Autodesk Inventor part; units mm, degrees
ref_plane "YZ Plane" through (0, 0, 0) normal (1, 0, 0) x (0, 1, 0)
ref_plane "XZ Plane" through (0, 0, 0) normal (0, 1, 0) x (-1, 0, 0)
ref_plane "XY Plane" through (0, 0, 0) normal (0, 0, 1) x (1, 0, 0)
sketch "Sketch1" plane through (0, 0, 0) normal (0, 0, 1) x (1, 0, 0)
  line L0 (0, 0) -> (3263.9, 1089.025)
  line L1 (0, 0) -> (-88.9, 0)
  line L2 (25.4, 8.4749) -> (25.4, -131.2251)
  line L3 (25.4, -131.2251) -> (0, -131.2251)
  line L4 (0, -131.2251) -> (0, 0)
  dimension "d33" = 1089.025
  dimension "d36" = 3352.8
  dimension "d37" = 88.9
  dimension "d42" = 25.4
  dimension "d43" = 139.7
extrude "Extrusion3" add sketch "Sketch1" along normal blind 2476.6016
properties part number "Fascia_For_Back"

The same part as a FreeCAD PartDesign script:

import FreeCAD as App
import Part
import Sketcher
Q = App.Units.Quantity


def add_polygon(sketch, points):
    """Adds a closed chain of lines whose ends are joined by coincident constraints."""
    first, n = sketch.GeometryCount, len(points)
    for a, b in zip(points, points[1:] + points[:1]):
        sketch.addGeometry(Part.LineSegment(App.Vector(*a, 0), App.Vector(*b, 0)), False)
    for i in range(n):
        sketch.addConstraint(Sketcher.Constraint("Coincident", first + i, 2, first + (i + 1) % n, 1))

doc = App.newDocument("Part")
params = doc.addObject("Spreadsheet::Sheet", "Params")
for row, (alias, value) in enumerate([
    ("sketch1_width", "1 in"),
    ("sketch1_height", "5.5 in"),
    ("pad1_length", "97.504 in"),
], start=1):
    params.set(f"A{row}", alias)
    params.set(f"B{row}", "=" + value)
    params.setAlias(f"B{row}", alias)

body = doc.addObject("PartDesign::Body", "Body")

sketch1 = body.newObject("Sketcher::SketchObject", "Sketch")
sketch1.AttachmentSupport = (doc.getObject("XY_Plane"), [""])
sketch1.MapMode = "FlatFace"
add_polygon(sketch1, [(25.399999, 8.474902), (0, 0), (0, -131.2251), (25.4, -131.2251)])
sketch1.addConstraint(Sketcher.Constraint("Vertical", 1))
sketch1.addConstraint(Sketcher.Constraint("Horizontal", 2))
sketch1.addConstraint(Sketcher.Constraint("Vertical", 3))
sketch1.addConstraint(Sketcher.Constraint("Coincident", 0, 2, -1, 1))
sketch1.addConstraint(Sketcher.Constraint("DistanceX", 2, 1, 2, 2, Q("1 in")))
sketch1.addConstraint(Sketcher.Constraint("DistanceY", 3, 1, 3, 2, Q("5.5 in")))
sketch1.addConstraint(Sketcher.Constraint("Distance", 0, Q("1.0542 in")))
sketch1.setExpression("Constraints[8]", "Params.sketch1_width")
sketch1.setExpression("Constraints[9]", "Params.sketch1_height")
pad1 = body.newObject("PartDesign::Pad", "Pad")
pad1.Profile = sketch1
pad1.setExpression("Length", "Params.pad1_length")

doc.recompute()
